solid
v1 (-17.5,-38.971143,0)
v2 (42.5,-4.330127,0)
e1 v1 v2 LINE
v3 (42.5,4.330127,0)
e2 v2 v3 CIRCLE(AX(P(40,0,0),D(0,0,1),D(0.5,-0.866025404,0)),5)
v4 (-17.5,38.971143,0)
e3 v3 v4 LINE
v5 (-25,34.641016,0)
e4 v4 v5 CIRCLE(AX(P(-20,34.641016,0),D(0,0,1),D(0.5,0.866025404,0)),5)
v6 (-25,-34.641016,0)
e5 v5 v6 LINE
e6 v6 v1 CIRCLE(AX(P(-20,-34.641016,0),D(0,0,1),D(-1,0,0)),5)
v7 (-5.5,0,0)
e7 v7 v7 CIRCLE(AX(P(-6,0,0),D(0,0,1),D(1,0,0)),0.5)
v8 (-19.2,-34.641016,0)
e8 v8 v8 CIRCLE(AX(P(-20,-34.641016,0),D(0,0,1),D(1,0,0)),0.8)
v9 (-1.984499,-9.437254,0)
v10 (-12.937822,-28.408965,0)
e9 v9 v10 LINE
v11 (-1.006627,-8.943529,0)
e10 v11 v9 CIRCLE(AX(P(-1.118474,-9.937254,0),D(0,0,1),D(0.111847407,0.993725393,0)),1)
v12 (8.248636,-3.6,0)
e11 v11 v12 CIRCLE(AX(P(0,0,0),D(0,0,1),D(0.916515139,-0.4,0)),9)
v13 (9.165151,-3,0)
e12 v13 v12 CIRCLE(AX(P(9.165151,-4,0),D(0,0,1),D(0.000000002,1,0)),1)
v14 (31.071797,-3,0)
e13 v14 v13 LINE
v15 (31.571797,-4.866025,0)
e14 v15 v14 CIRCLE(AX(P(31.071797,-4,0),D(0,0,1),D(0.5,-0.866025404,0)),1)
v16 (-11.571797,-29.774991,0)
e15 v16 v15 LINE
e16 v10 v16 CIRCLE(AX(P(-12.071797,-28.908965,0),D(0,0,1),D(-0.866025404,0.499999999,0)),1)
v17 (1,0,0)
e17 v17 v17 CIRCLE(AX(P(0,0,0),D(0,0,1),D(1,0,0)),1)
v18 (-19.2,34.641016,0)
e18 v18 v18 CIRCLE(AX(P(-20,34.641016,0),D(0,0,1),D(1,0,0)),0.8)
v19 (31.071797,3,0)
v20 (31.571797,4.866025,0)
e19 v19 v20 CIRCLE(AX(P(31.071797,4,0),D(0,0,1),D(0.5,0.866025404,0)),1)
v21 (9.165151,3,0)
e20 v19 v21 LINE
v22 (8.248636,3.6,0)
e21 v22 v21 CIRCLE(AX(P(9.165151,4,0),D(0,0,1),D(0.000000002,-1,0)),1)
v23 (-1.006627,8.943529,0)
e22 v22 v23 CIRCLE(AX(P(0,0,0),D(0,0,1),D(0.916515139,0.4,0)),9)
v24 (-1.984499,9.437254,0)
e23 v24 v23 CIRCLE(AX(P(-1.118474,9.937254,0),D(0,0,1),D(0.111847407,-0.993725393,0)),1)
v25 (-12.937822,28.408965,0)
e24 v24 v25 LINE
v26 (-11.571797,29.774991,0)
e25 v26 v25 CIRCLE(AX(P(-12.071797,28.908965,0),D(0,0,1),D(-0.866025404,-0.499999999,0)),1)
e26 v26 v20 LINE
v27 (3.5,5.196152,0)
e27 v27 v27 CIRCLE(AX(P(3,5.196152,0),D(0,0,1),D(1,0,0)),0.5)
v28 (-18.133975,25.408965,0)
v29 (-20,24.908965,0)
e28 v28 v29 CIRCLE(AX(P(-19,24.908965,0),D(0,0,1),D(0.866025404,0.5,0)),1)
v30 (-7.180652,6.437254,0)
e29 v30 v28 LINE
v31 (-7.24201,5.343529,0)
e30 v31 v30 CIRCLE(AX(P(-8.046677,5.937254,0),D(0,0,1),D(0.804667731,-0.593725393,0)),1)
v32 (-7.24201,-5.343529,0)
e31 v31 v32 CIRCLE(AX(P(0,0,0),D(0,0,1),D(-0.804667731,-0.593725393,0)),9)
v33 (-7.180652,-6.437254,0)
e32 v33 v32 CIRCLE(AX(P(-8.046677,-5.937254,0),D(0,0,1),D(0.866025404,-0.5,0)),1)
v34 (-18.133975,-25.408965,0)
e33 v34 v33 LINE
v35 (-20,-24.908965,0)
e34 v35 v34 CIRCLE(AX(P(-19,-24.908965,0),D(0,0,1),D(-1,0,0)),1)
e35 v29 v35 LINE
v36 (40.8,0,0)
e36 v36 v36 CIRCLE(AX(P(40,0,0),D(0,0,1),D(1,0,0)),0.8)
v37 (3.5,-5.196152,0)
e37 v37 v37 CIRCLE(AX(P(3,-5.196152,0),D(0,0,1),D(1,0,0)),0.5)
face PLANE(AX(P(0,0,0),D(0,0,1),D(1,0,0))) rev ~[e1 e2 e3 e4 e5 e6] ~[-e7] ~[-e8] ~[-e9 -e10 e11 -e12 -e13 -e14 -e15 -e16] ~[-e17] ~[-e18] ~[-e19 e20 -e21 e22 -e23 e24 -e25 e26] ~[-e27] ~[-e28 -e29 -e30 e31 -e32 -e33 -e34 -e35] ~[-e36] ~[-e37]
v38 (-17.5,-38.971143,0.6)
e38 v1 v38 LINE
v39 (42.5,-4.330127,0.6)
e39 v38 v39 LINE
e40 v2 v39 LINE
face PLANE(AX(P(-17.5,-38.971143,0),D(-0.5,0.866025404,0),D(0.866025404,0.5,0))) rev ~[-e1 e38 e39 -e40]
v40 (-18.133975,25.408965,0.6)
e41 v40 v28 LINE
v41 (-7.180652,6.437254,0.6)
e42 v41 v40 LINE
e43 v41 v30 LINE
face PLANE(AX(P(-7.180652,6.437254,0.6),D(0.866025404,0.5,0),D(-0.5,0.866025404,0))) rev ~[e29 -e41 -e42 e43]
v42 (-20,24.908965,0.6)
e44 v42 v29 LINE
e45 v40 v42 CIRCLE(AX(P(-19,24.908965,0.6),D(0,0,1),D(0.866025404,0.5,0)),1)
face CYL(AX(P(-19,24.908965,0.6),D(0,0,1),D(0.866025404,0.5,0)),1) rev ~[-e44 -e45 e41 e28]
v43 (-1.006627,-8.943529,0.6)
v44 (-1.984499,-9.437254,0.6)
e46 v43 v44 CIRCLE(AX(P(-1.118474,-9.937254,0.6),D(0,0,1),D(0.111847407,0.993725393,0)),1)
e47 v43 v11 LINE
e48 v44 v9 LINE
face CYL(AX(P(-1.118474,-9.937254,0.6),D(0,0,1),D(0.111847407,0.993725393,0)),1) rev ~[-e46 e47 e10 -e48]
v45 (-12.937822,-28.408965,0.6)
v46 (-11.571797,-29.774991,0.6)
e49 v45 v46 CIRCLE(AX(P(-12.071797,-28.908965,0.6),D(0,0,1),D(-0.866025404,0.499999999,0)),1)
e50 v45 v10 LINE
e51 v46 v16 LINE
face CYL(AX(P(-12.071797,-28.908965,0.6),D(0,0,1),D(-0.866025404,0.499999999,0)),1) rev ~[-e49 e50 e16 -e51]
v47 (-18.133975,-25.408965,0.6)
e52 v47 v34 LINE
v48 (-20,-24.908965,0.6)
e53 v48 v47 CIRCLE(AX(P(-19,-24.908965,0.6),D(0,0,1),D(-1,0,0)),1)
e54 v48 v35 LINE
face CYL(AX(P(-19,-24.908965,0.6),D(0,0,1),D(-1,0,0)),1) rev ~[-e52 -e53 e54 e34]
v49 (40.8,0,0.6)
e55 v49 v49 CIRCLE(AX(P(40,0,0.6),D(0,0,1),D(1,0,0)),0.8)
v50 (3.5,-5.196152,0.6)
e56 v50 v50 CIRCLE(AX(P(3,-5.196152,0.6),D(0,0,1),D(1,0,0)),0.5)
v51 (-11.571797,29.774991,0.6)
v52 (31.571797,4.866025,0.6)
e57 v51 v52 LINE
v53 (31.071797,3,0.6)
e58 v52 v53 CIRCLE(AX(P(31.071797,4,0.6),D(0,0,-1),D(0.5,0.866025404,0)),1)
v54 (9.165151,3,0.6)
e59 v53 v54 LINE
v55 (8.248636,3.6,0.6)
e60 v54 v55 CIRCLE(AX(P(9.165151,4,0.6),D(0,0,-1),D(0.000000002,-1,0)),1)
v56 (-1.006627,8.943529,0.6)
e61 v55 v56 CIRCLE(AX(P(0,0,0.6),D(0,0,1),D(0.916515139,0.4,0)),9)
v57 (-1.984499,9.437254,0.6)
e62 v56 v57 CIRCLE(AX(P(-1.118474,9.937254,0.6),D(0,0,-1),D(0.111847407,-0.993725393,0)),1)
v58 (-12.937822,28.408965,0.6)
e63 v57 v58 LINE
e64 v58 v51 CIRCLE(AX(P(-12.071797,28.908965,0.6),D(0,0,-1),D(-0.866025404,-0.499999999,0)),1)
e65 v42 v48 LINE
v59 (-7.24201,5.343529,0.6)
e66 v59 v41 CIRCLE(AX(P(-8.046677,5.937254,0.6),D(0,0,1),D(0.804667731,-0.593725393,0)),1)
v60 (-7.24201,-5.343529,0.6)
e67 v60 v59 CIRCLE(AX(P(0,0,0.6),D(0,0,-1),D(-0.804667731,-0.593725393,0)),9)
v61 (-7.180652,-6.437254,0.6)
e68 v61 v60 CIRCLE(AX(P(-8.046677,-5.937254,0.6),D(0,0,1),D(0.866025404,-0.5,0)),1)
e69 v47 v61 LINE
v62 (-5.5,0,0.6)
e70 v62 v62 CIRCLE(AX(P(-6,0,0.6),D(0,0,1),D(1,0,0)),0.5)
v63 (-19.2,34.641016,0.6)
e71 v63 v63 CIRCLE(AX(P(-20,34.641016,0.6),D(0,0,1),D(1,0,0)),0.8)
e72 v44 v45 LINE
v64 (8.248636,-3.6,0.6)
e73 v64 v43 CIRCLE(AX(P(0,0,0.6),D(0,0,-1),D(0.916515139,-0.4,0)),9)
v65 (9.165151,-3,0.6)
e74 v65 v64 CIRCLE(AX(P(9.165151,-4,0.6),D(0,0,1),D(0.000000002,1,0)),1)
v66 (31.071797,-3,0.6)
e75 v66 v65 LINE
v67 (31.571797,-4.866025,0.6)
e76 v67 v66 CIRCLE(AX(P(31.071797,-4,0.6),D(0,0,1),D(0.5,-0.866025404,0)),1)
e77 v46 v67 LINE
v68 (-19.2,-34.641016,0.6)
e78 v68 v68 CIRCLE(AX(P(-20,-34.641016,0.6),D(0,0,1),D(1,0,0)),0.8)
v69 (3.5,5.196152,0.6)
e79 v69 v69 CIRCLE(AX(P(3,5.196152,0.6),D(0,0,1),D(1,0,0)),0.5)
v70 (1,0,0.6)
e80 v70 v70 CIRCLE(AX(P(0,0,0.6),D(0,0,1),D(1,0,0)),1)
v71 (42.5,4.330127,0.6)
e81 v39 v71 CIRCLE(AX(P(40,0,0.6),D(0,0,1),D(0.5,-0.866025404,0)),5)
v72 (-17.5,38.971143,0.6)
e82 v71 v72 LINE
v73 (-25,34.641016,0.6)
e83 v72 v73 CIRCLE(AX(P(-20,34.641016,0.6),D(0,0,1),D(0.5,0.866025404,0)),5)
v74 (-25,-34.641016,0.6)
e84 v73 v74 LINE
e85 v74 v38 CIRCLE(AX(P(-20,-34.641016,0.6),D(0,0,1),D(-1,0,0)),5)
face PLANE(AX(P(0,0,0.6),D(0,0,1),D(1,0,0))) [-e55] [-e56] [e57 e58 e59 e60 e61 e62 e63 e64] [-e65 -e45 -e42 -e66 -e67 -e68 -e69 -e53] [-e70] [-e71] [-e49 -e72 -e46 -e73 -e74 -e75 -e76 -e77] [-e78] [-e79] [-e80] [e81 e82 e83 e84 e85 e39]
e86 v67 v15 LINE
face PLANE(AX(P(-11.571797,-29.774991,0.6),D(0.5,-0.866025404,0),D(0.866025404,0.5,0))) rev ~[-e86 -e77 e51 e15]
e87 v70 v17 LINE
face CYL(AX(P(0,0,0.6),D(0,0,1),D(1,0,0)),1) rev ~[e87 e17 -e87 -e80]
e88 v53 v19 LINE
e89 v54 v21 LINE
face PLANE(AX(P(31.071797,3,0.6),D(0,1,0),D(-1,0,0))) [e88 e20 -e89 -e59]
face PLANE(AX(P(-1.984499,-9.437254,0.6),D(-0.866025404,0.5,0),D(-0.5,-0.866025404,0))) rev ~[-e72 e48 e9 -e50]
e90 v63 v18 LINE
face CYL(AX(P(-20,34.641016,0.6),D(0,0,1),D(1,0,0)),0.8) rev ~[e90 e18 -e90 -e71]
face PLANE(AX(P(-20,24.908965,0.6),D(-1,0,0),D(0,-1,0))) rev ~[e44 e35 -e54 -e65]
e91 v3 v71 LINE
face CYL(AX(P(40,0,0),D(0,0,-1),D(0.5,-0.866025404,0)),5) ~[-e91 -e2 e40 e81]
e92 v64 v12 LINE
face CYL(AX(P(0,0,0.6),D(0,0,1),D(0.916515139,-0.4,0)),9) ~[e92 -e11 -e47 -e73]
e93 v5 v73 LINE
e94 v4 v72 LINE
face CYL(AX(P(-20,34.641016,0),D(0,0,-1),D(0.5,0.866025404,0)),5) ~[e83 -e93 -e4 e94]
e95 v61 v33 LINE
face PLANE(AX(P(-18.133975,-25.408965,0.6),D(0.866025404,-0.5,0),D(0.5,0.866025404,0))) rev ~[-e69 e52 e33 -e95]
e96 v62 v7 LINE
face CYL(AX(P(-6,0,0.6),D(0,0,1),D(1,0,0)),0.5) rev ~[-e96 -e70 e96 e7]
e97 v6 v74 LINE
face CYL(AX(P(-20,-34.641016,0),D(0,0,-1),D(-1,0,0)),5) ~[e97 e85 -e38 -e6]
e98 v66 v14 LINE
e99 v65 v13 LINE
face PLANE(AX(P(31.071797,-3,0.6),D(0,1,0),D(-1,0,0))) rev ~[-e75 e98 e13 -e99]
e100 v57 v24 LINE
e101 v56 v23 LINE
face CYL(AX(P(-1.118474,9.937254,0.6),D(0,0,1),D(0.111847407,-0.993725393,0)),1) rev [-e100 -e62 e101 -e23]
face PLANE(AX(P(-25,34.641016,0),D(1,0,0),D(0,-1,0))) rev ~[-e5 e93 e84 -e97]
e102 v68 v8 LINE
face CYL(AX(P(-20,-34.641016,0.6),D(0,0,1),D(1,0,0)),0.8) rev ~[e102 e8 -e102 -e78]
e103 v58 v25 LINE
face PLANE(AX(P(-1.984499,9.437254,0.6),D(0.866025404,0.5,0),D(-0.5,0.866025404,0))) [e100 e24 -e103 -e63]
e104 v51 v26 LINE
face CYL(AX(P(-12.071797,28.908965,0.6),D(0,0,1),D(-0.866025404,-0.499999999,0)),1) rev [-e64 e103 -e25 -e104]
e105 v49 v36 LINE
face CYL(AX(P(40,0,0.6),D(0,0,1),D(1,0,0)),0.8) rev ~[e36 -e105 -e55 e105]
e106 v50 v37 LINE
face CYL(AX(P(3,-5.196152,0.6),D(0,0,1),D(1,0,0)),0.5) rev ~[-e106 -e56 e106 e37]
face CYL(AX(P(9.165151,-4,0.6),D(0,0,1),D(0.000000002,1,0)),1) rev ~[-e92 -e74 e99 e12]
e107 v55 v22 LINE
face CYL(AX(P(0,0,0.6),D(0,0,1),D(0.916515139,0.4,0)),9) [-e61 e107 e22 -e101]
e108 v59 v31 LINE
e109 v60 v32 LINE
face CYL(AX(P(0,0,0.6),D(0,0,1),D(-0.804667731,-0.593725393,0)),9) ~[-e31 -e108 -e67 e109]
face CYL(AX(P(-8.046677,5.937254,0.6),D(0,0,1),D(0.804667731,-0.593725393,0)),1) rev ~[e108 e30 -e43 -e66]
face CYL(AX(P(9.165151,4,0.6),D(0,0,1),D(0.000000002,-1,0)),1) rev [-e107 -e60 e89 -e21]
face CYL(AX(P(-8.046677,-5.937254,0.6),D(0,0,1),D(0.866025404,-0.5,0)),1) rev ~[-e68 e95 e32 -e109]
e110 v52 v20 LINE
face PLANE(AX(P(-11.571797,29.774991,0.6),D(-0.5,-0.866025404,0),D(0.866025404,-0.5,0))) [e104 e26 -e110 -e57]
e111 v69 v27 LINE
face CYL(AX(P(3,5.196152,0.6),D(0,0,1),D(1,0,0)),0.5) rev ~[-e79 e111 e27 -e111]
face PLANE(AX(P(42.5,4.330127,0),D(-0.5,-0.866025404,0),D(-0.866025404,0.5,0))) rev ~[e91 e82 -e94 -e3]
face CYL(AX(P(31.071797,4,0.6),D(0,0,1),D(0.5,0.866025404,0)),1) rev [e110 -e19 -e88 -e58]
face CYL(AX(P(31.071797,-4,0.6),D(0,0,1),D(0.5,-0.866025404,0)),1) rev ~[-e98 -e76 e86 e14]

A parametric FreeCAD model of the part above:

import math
import FreeCAD as App
import Part
import Sketcher

V = App.Vector
Q = App.Units.Quantity

doc = App.newDocument("Part")
body = doc.addObject("PartDesign::Body", "Body")

# Sketch on XY plane
sketch1 = doc.addObject("Sketcher::SketchObject", "Sketch")
body.addObject(sketch1)
sketch1.AttachmentSupport = (doc.XY_Plane, [""])
sketch1.MapMode = "FlatFace"
sketch1.addGeometry(Part.LineSegment(V(42, 4, 0), V(-18, 39, 0)), False)
sketch1.addGeometry(Part.ArcOfCircle(Part.Circle(V(-20, 35, 0), V(0, 0, 1), 5), math.radians(60), math.radians(180)), False)
sketch1.addGeometry(Part.LineSegment(V(-25, 35, 0), V(-25, -35, 0)), False)
sketch1.addGeometry(Part.ArcOfCircle(Part.Circle(V(-20, -35, 0), V(0, 0, 1), 5), math.radians(180), math.radians(300)), False)
sketch1.addGeometry(Part.LineSegment(V(-18, -39, 0), V(42, -4, 0)), False)
sketch1.addGeometry(Part.ArcOfCircle(Part.Circle(V(40, 0, 0), V(0, 0, 1), 5), math.radians(-60), math.radians(60)), False)
sketch1.addConstraint(Sketcher.Constraint("Tangent", 0, 2, 1, 1))
sketch1.addConstraint(Sketcher.Constraint("Tangent", 1, 2, 2, 1))
sketch1.addConstraint(Sketcher.Constraint("Tangent", 2, 2, 3, 1))
sketch1.addConstraint(Sketcher.Constraint("Tangent", 3, 2, 4, 1))
sketch1.addConstraint(Sketcher.Constraint("Tangent", 4, 2, 5, 1))
sketch1.addConstraint(Sketcher.Constraint("Tangent", 5, 2, 0, 1))
sketch1.addConstraint(Sketcher.Constraint("Vertical", 2))
sketch1.addConstraint(Sketcher.Constraint("Equal", 1, 3))
sketch1.addConstraint(Sketcher.Constraint("Equal", 3, 5))
sketch1.addConstraint(Sketcher.Constraint("Symmetric", 0, 2, 3, 2, -1))
sketch1.addConstraint(Sketcher.Constraint("Radius", 1, 5.0))
sketch1.addConstraint(Sketcher.Constraint("Angle", 0, Q("150 deg")))
sketch1.addConstraint(Sketcher.Constraint("DistanceX", 1, 3, -1, 1, 20.0))
sketch1.addConstraint(Sketcher.Constraint("DistanceX", -1, 1, 5, 3, 40.0))
pad1 = doc.addObject("PartDesign::Pad", "Pad")
body.addObject(pad1)
pad1.Profile = sketch1
pad1.Length = 0.6

# Sketch on XY plane
sketch2 = doc.addObject("Sketcher::SketchObject", "Sketch001")
body.addObject(sketch2)
sketch2.AttachmentSupport = (doc.XY_Plane, [""])
sketch2.MapMode = "FlatFace"
sketch2.AttachmentOffset = App.Placement(V(0, 0, 0.6), App.Rotation())
sketch2.addGeometry(Part.LineSegment(V(9.2, 3, 0), V(31.1, 3, 0)), False)
sketch2.addGeometry(Part.ArcOfCircle(Part.Circle(V(31.1, 4, 0), V(0, 0, 1), 1), math.radians(-90), math.radians(60)), False)
sketch2.addGeometry(Part.LineSegment(V(31.6, 4.9, 0), V(-11.6, 29.8, 0)), False)
sketch2.addGeometry(Part.ArcOfCircle(Part.Circle(V(-12.1, 28.9, 0), V(0, 0, 1), 1), math.radians(60), math.radians(210)), False)
sketch2.addGeometry(Part.LineSegment(V(-12.9, 28.4, 0), V(-2, 9.4, 0)), False)
sketch2.addGeometry(Part.ArcOfCircle(Part.Circle(V(-1.1, 9.9, 0), V(0, 0, 1), 1), math.radians(-150), math.radians(-84)), False)
sketch2.addGeometry(Part.ArcOfCircle(Part.Circle(V(0, 0, 0), V(0, 0, 1), 9), math.radians(24), math.radians(96)), False)
sketch2.addGeometry(Part.ArcOfCircle(Part.Circle(V(9.2, 4, 0), V(0, 0, 1), 1), math.radians(-156), math.radians(-90)), False)
sketch2.addGeometry(Part.LineSegment(V(31.1, -3, 0), V(9.2, -3, 0)), False)
sketch2.addGeometry(Part.ArcOfCircle(Part.Circle(V(9.2, -4, 0), V(0, 0, 1), 1), math.radians(90), math.radians(156)), False)
sketch2.addGeometry(Part.ArcOfCircle(Part.Circle(V(0, 0, 0), V(0, 0, 1), 9), math.radians(-96), math.radians(-24)), False)
sketch2.addGeometry(Part.ArcOfCircle(Part.Circle(V(-1.1, -9.9, 0), V(0, 0, 1), 1), math.radians(84), math.radians(150)), False)
sketch2.addGeometry(Part.LineSegment(V(-2, -9.4, 0), V(-12.9, -28.4, 0)), False)
sketch2.addGeometry(Part.ArcOfCircle(Part.Circle(V(-12.1, -28.9, 0), V(0, 0, 1), 1), math.radians(150), math.radians(300)), False)
sketch2.addGeometry(Part.LineSegment(V(-11.6, -29.8, 0), V(31.6, -4.9, 0)), False)
sketch2.addGeometry(Part.ArcOfCircle(Part.Circle(V(31.1, -4, 0), V(0, 0, 1), 1), math.radians(-60), math.radians(90)), False)
sketch2.addGeometry(Part.LineSegment(V(-18.1, -25.4, 0), V(-7.2, -6.4, 0)), False)
sketch2.addGeometry(Part.ArcOfCircle(Part.Circle(V(-8, -5.9, 0), V(0, 0, 1), 1), math.radians(-30), math.radians(36)), False)
sketch2.addGeometry(Part.ArcOfCircle(Part.Circle(V(0, 0, 0), V(0, 0, 1), 9), math.radians(144), math.radians(216)), False)
sketch2.addGeometry(Part.ArcOfCircle(Part.Circle(V(-8, 5.9, 0), V(0, 0, 1), 1), math.radians(-36), math.radians(30)), False)
sketch2.addGeometry(Part.LineSegment(V(-7.2, 6.4, 0), V(-18.1, 25.4, 0)), False)
sketch2.addGeometry(Part.ArcOfCircle(Part.Circle(V(-19, 24.9, 0), V(0, 0, 1), 1), math.radians(30), math.radians(180)), False)
sketch2.addGeometry(Part.LineSegment(V(-20, 24.9, 0), V(-20, -24.9, 0)), False)
sketch2.addGeometry(Part.ArcOfCircle(Part.Circle(V(-19, -24.9, 0), V(0, 0, 1), 1), math.radians(180), math.radians(330)), False)
sketch2.addConstraint(Sketcher.Constraint("Tangent", 0, 2, 1, 1))
sketch2.addConstraint(Sketcher.Constraint("Tangent", 1, 2, 2, 1))
sketch2.addConstraint(Sketcher.Constraint("Tangent", 2, 2, 3, 1))
sketch2.addConstraint(Sketcher.Constraint("Tangent", 3, 2, 4, 1))
sketch2.addConstraint(Sketcher.Constraint("Tangent", 4, 2, 5, 1))
sketch2.addConstraint(Sketcher.Constraint("Tangent", 5, 2, 6, 2))
sketch2.addConstraint(Sketcher.Constraint("Tangent", 6, 1, 7, 1))
sketch2.addConstraint(Sketcher.Constraint("Tangent", 7, 2, 0, 1))
sketch2.addConstraint(Sketcher.Constraint("Tangent", 8, 2, 9, 1))
sketch2.addConstraint(Sketcher.Constraint("Tangent", 9, 2, 10, 2))
sketch2.addConstraint(Sketcher.Constraint("Tangent", 10, 1, 11, 1))
sketch2.addConstraint(Sketcher.Constraint("Tangent", 11, 2, 12, 1))
sketch2.addConstraint(Sketcher.Constraint("Tangent", 12, 2, 13, 1))
sketch2.addConstraint(Sketcher.Constraint("Tangent", 13, 2, 14, 1))
sketch2.addConstraint(Sketcher.Constraint("Tangent", 14, 2, 15, 1))
sketch2.addConstraint(Sketcher.Constraint("Tangent", 15, 2, 8, 1))
sketch2.addConstraint(Sketcher.Constraint("Tangent", 16, 2, 17, 1))
sketch2.addConstraint(Sketcher.Constraint("Tangent", 17, 2, 18, 2))
sketch2.addConstraint(Sketcher.Constraint("Tangent", 18, 1, 19, 1))
sketch2.addConstraint(Sketcher.Constraint("Tangent", 19, 2, 20, 1))
sketch2.addConstraint(Sketcher.Constraint("Tangent", 20, 2, 21, 1))
sketch2.addConstraint(Sketcher.Constraint("Tangent", 21, 2, 22, 1))
sketch2.addConstraint(Sketcher.Constraint("Tangent", 22, 2, 23, 1))
sketch2.addConstraint(Sketcher.Constraint("Tangent", 23, 2, 16, 1))
sketch2.addConstraint(Sketcher.Constraint("Horizontal", 0))
sketch2.addConstraint(Sketcher.Constraint("Horizontal", 8))
sketch2.addConstraint(Sketcher.Constraint("Vertical", 22))
sketch2.addConstraint(Sketcher.Constraint("Coincident", 6, 3, -1, 1))
sketch2.addConstraint(Sketcher.Constraint("Coincident", 10, 3, -1, 1))
sketch2.addConstraint(Sketcher.Constraint("Coincident", 18, 3, -1, 1))
sketch2.addConstraint(Sketcher.Constraint("Equal", 1, 3))
sketch2.addConstraint(Sketcher.Constraint("Equal", 3, 5))
sketch2.addConstraint(Sketcher.Constraint("Equal", 5, 7))
sketch2.addConstraint(Sketcher.Constraint("Equal", 7, 9))
sketch2.addConstraint(Sketcher.Constraint("Equal", 6, 10))
sketch2.addConstraint(Sketcher.Constraint("Equal", 9, 11))
sketch2.addConstraint(Sketcher.Constraint("Equal", 11, 13))
sketch2.addConstraint(Sketcher.Constraint("Equal", 13, 15))
sketch2.addConstraint(Sketcher.Constraint("Equal", 15, 17))
sketch2.addConstraint(Sketcher.Constraint("Equal", 10, 18))
sketch2.addConstraint(Sketcher.Constraint("Equal", 17, 19))
sketch2.addConstraint(Sketcher.Constraint("Equal", 19, 21))
sketch2.addConstraint(Sketcher.Constraint("Equal", 21, 23))
sketch2.addConstraint(Sketcher.Constraint("Symmetric", 3, 3, 13, 3, -1))
sketch2.addConstraint(Sketcher.Constraint("Symmetric", 1, 3, 15, 3, -1))
sketch2.addConstraint(Sketcher.Constraint("Symmetric", 16, 2, 19, 2, -1))
sketch2.addConstraint(Sketcher.Constraint("Perpendicular", 2, 12))
sketch2.addConstraint(Sketcher.Constraint("Perpendicular", 4, 14))
sketch2.addConstraint(Sketcher.Constraint("Parallel", 12, 16))
sketch2.addConstraint(Sketcher.Constraint("Equal", 12, 16))
sketch2.addConstraint(Sketcher.Constraint("Radius", 1, 1.0))
sketch2.addConstraint(Sketcher.Constraint("Radius", 6, 9.0))
sketch2.addConstraint(Sketcher.Constraint("Angle", 2, Q("150 deg")))
sketch2.addConstraint(Sketcher.Constraint("DistanceY", -1, 1, 1, 3, 4.0))
sketch2.addConstraint(Sketcher.Constraint("DistanceX", 21, 3, -1, 1, 19.0))
sketch2.addConstraint(Sketcher.Constraint("DistanceY", 11, 3, 17, 3, 4.0))
sketch2.addConstraint(Sketcher.Constraint("DistanceY", 22, 2, 22, 1, 49.817931))
pocket1 = doc.addObject("PartDesign::Pocket", "Pocket")
body.addObject(pocket1)
pocket1.Profile = sketch2
pocket1.Type = "ThroughAll"

# Sketch on XY plane
sketch3 = doc.addObject("Sketcher::SketchObject", "Sketch002")
body.addObject(sketch3)
sketch3.AttachmentSupport = (doc.XY_Plane, [""])
sketch3.MapMode = "FlatFace"
sketch3.AttachmentOffset = App.Placement(V(0, 0, 0.6), App.Rotation())
sketch3.addGeometry(Part.Circle(V(-6, 0, 0), V(0, 0, 1), 0.5), False)
sketch3.addGeometry(Part.Circle(V(3, 5.2, 0), V(0, 0, 1), 0.5), False)
sketch3.addGeometry(Part.Circle(V(3, -5.2, 0), V(0, 0, 1), 0.5), False)
sketch3.addGeometry(Part.Circle(V(0, 0, 0), V(0, 0, 1), 1), False)
sketch3.addConstraint(Sketcher.Constraint("Coincident", 3, 3, -1, 1))
sketch3.addConstraint(Sketcher.Constraint("Equal", 0, 1))
sketch3.addConstraint(Sketcher.Constraint("Equal", 1, 2))
sketch3.addConstraint(Sketcher.Constraint("Symmetric", 1, 3, 2, 3, -1))
sketch3.addConstraint(Sketcher.Constraint("PointOnObject", 0, 3, -1))
sketch3.addConstraint(Sketcher.Constraint("Diameter", 0, 1.0))
sketch3.addConstraint(Sketcher.Constraint("Diameter", 3, 2.0))
sketch3.addConstraint(Sketcher.Constraint("DistanceX", 0, 3, -1, 1, 6.0))
sketch3.addConstraint(Sketcher.Constraint("DistanceX", -1, 1, 1, 3, 3.0))
sketch3.addConstraint(Sketcher.Constraint("DistanceY", -1, 1, 1, 3, 5.196152))
pocket2 = doc.addObject("PartDesign::Pocket", "Pocket001")
body.addObject(pocket2)
pocket2.Profile = sketch3
pocket2.Type = "ThroughAll"

# Sketch on XY plane
sketch4 = doc.addObject("Sketcher::SketchObject", "Sketch003")
body.addObject(sketch4)
sketch4.AttachmentSupport = (doc.XY_Plane, [""])
sketch4.MapMode = "FlatFace"
sketch4.AttachmentOffset = App.Placement(V(0, 0, 0.6), App.Rotation())
sketch4.addGeometry(Part.Circle(V(40, 0, 0), V(0, 0, 1), 0.8), False)
sketch4.addGeometry(Part.Circle(V(-20, -34.6, 0), V(0, 0, 1), 0.8), False)
sketch4.addGeometry(Part.Circle(V(-20, 34.6, 0), V(0, 0, 1), 0.8), False)
sketch4.addConstraint(Sketcher.Constraint("Equal", 0, 1))
sketch4.addConstraint(Sketcher.Constraint("Equal", 1, 2))
sketch4.addConstraint(Sketcher.Constraint("Symmetric", 1, 3, 2, 3, -1))
sketch4.addConstraint(Sketcher.Constraint("PointOnObject", 0, 3, -1))
sketch4.addConstraint(Sketcher.Constraint("Diameter", 0, 1.6))
sketch4.addConstraint(Sketcher.Constraint("DistanceX", -1, 1, 0, 3, 40.0))
sketch4.addConstraint(Sketcher.Constraint("DistanceX", 1, 3, -1, 1, 20.0))
sketch4.addConstraint(Sketcher.Constraint("DistanceY", 1, 3, -1, 1, 34.641016))
pocket3 = doc.addObject("PartDesign::Pocket", "Pocket002")
body.addObject(pocket3)
pocket3.Profile = sketch4
pocket3.Type = "ThroughAll"

doc.recompute()
